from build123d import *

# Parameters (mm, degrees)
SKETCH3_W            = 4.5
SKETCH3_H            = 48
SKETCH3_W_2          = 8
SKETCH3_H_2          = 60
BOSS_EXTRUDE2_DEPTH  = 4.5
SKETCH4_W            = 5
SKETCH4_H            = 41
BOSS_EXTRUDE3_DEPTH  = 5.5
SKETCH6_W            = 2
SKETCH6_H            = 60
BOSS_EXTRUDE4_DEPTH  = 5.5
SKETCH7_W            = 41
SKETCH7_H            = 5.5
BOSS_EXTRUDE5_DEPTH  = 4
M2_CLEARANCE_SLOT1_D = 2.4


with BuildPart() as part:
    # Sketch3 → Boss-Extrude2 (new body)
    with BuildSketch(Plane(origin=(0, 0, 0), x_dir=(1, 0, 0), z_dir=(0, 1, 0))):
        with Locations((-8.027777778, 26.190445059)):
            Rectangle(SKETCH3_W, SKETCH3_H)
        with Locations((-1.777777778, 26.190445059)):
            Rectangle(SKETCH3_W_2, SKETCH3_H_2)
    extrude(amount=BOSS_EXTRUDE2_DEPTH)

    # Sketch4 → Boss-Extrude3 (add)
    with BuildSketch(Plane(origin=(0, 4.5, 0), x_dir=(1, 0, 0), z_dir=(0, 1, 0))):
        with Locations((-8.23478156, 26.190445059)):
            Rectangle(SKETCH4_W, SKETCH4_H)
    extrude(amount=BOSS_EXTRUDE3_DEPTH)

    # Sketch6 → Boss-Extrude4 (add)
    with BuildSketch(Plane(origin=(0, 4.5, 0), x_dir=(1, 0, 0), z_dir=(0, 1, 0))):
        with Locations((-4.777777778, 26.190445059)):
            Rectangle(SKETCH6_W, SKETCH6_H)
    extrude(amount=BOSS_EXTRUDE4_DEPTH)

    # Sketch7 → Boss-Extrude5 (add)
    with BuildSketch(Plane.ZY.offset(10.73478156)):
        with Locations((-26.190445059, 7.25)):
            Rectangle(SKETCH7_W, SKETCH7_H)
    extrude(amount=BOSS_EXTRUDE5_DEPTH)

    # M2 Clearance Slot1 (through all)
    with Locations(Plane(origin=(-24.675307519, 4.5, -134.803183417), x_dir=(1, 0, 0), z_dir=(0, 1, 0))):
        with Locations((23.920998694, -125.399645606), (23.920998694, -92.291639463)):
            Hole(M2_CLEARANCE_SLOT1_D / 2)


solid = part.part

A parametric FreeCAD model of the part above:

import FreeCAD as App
import Part
import Sketcher

V = App.Vector


def add_polygon(sketch, points):
    """Adds a closed chain of lines whose ends are joined by coincident constraints."""
    first, n = sketch.GeometryCount, len(points)
    for a, b in zip(points, points[1:] + points[:1]):
        sketch.addGeometry(Part.LineSegment(App.Vector(*a, 0), App.Vector(*b, 0)), False)
    for i in range(n):
        sketch.addConstraint(Sketcher.Constraint("Coincident", first + i, 2, first + (i + 1) % n, 1))

doc = App.newDocument("Part")
body = doc.addObject("PartDesign::Body", "Body")

sketch1 = body.newObject("Sketcher::SketchObject", "Sketch")
sketch1.AttachmentSupport = (doc.getObject("XZ_Plane"), [""])
sketch1.MapMode = "FlatFace"
add_polygon(sketch1, [(-10.3, -50.2), (-10.3, -2.2), (-5.8, -2.2), (-5.8, 3.8), (2.2, 3.8), (2.2, -56.2), (-5.8, -56.2), (-5.8, -50.2)])
sketch1.addConstraint([
    Sketcher.Constraint("Vertical", 0),
    Sketcher.Constraint("Horizontal", 1),
    Sketcher.Constraint("Vertical", 2),
    Sketcher.Constraint("Horizontal", 3),
    Sketcher.Constraint("Vertical", 4),
    Sketcher.Constraint("Horizontal", 5),
    Sketcher.Constraint("Vertical", 6),
    Sketcher.Constraint("Horizontal", 7),
    Sketcher.Constraint("Vertical", 2, 2, 5, 2),
    Sketcher.Constraint("Equal", 2, 6),
    Sketcher.Constraint("DistanceX", 3, 1, 3, 2, 8.0),
    Sketcher.Constraint("DistanceY", 0, 1, 0, 2, 48.0),
    Sketcher.Constraint("DistanceY", 2, 1, 2, 2, 6.0),
    Sketcher.Constraint("DistanceX", 1, 1, 1, 2, 4.5),
    Sketcher.Constraint("DistanceX", 0, 2, -1, 1, 10.277778),
    Sketcher.Constraint("DistanceY", 0, 2, -1, 1, 2.190445),
])
pad1 = body.newObject("PartDesign::Pad", "Pad")
pad1.Profile = sketch1
pad1.Length = 4.5
pad1.Reversed = True

sketch2 = body.newObject("Sketcher::SketchObject", "Sketch001")
sketch2.AttachmentSupport = (doc.getObject("XZ_Plane"), [""])
sketch2.MapMode = "FlatFace"
sketch2.AttachmentOffset = App.Placement(V(0, 0, -4.5), App.Rotation())
add_polygon(sketch2, [(-11, -47), (-11, -6), (-6, -6), (-6, -47)])
sketch2.addConstraint([
    Sketcher.Constraint("Vertical", 0),
    Sketcher.Constraint("Horizontal", 1),
    Sketcher.Constraint("Vertical", 2),
    Sketcher.Constraint("Horizontal", 3),
    Sketcher.Constraint("DistanceX", 1, 1, 1, 2, 5.0),
    Sketcher.Constraint("DistanceY", 0, 1, 0, 2, 41.0),
    Sketcher.Constraint("DistanceX", 0, 2, -1, 1, 10.734782),
    Sketcher.Constraint("DistanceY", 0, 2, -1, 1, 5.690445),
])
pad2 = body.newObject("PartDesign::Pad", "Pad001")
pad2.Profile = sketch2
pad2.Length = 5.5
pad2.Reversed = True

sketch3 = body.newObject("Sketcher::SketchObject", "Sketch002")
sketch3.AttachmentSupport = (doc.getObject("XZ_Plane"), [""])
sketch3.MapMode = "FlatFace"
sketch3.AttachmentOffset = App.Placement(V(0, 0, -4.5), App.Rotation())
add_polygon(sketch3, [(-5.8, -56.2), (-5.8, 3.8), (-3.8, 3.8), (-3.8, -56.2)])
sketch3.addConstraint([
    Sketcher.Constraint("Vertical", 0),
    Sketcher.Constraint("Horizontal", 1),
    Sketcher.Constraint("Vertical", 2),
    Sketcher.Constraint("Horizontal", 3),
    Sketcher.Constraint("DistanceX", 1, 1, 1, 2, 2.0),
    Sketcher.Constraint("DistanceY", 0, 1, 0, 2, 60.0),
    Sketcher.Constraint("DistanceX", 0, 2, -1, 1, 5.777778),
    Sketcher.Constraint("DistanceY", -1, 1, 0, 2, 3.809555),
])
pad3 = body.newObject("PartDesign::Pad", "Pad002")
pad3.Profile = sketch3
pad3.Length = 5.5
pad3.Reversed = True

sketch4 = body.newObject("Sketcher::SketchObject", "Sketch003")
sketch4.AttachmentSupport = (doc.getObject("YZ_Plane"), [""])
sketch4.MapMode = "FlatFace"
sketch4.AttachmentOffset = App.Placement(V(0, 0, -10.734782), App.Rotation())
add_polygon(sketch4, [(10, -47), (4, -47), (4, -6), (10, -6)])
sketch4.addConstraint([
    Sketcher.Constraint("Horizontal", 0),
    Sketcher.Constraint("Vertical", 1),
    Sketcher.Constraint("Horizontal", 2),
    Sketcher.Constraint("Vertical", 3),
    Sketcher.Constraint("DistanceY", 1, 1, 1, 2, 41.0),
    Sketcher.Constraint("DistanceX", 0, 2, 0, 1, 5.5),
    Sketcher.Constraint("DistanceX", -1, 1, 2, 2, 10.0),
    Sketcher.Constraint("DistanceY", 0, 2, -1, 1, 46.690445),
])
pad4 = body.newObject("PartDesign::Pad", "Pad003")
pad4.Profile = sketch4
pad4.Length = 4
pad4.Reversed = True

sketch5 = body.newObject("Sketcher::SketchObject", "Sketch004")
sketch5.AttachmentSupport = (doc.getObject("XZ_Plane"), [""])
sketch5.MapMode = "FlatFace"
sketch5.AttachmentOffset = App.Placement(V(0, 0, -4.5), App.Rotation())
sketch5.addGeometry([
    Part.Circle(V(-0.8, -9.4, 0), V(0, 0, 1), 1.2),
    Part.Circle(V(-0.8, -42.5, 0), V(0, 0, 1), 1.2),
], False)
sketch5.addConstraint([
    Sketcher.Constraint("Equal", 0, 1),
    Sketcher.Constraint("Vertical", 0, 3, 1, 3),
    Sketcher.Constraint("Diameter", 0, 2.4),
    Sketcher.Constraint("DistanceX", 0, 3, -1, 1, 0.754309),
    Sketcher.Constraint("DistanceY", 0, 3, -1, 1, 9.403538),
    Sketcher.Constraint("DistanceY", 1, 3, -1, 1, 42.511544),
])
doc.recompute()
hole = body.newObject("PartDesign::Hole", "Hole")
hole.Profile = sketch5
hole.ThreadType = "None"
hole.Diameter = 2.4
hole.DepthType = "ThroughAll"
hole.Reversed = True

doc.recompute()
